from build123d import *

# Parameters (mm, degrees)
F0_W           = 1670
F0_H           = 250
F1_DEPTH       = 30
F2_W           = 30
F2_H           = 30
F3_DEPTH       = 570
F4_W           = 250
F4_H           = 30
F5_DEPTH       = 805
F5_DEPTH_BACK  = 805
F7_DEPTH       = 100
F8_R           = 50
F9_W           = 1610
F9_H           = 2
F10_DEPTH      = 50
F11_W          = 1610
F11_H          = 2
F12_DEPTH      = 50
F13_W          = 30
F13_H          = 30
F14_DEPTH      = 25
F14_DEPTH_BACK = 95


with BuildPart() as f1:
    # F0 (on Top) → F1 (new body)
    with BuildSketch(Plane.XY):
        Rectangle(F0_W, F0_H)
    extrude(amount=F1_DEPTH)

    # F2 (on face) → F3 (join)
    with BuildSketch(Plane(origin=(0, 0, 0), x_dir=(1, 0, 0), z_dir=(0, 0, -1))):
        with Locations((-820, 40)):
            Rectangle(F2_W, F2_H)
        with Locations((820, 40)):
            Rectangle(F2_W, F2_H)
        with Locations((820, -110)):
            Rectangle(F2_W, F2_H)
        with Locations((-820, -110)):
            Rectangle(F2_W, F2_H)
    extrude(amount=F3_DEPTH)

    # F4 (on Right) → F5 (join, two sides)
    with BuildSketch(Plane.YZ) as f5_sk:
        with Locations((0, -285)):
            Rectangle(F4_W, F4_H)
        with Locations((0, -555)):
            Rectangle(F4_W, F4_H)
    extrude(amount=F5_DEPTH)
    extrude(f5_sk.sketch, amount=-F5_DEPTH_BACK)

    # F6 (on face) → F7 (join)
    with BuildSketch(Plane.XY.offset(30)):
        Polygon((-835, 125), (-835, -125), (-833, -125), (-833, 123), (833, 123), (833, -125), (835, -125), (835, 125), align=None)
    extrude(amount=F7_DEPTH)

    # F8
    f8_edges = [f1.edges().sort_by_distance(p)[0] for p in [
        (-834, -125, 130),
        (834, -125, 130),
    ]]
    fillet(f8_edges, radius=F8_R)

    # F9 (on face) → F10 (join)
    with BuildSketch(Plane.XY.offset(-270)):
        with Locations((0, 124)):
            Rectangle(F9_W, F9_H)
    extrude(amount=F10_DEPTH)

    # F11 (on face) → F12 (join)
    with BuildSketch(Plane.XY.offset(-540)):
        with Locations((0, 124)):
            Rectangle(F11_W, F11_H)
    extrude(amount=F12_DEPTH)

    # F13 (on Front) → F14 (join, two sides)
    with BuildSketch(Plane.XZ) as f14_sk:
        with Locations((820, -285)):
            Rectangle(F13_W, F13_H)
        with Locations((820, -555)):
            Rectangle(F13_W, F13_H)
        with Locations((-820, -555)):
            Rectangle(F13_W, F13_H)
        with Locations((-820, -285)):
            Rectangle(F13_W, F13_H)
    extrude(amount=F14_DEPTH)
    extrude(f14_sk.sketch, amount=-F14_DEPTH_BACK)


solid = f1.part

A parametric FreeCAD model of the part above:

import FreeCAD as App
import Part
import Sketcher


def edges_at(feature, points):
    """Names of the edges that pass closest to the given points."""
    edges = feature.Shape.Edges
    near = lambda p: min(range(len(edges)), key=lambda i: edges[i].distToShape(Part.Vertex(*p))[0])
    return sorted({f"Edge{near(p) + 1}" for p in points})

doc = App.newDocument("Part")
body = doc.addObject("PartDesign::Body", "Body")

sketch1 = doc.addObject("Sketcher::SketchObject", "Sketch")
body.addObject(sketch1)
sketch1.AttachmentSupport = (doc.XY_Plane, [""])
sketch1.MapMode = "FlatFace"
sketch1.addGeometry(Part.LineSegment(App.Vector(-835, 125, 0), App.Vector(-835, -125, 0)), False)
sketch1.addGeometry(Part.LineSegment(App.Vector(-835, -125, 0), App.Vector(835, -125, 0)), False)
sketch1.addGeometry(Part.LineSegment(App.Vector(835, -125, 0), App.Vector(835, 125, 0)), False)
sketch1.addGeometry(Part.LineSegment(App.Vector(835, 125, 0), App.Vector(-835, 125, 0)), False)
sketch1.addConstraint(Sketcher.Constraint("Coincident", 0, 2, 1, 1))
sketch1.addConstraint(Sketcher.Constraint("Coincident", 1, 2, 2, 1))
sketch1.addConstraint(Sketcher.Constraint("Coincident", 2, 2, 3, 1))
sketch1.addConstraint(Sketcher.Constraint("Coincident", 3, 2, 0, 1))
sketch1.addConstraint(Sketcher.Constraint("Vertical", 0))
sketch1.addConstraint(Sketcher.Constraint("Horizontal", 1))
sketch1.addConstraint(Sketcher.Constraint("Vertical", 2))
sketch1.addConstraint(Sketcher.Constraint("Horizontal", 3))
sketch1.addConstraint(Sketcher.Constraint("Symmetric", 0, 2, 2, 2, -1, 1))
sketch1.addConstraint(Sketcher.Constraint("DistanceX", 1, 1, 1, 2, 1670.0))
sketch1.addConstraint(Sketcher.Constraint("DistanceY", 0, 2, 0, 1, 250.0))
pad1 = doc.addObject("PartDesign::Pad", "Pad")
body.addObject(pad1)
pad1.Profile = sketch1
pad1.Length = 30

sketch2 = doc.addObject("Sketcher::SketchObject", "Sketch001")
body.addObject(sketch2)
sketch2.AttachmentSupport = (doc.XY_Plane, [""])
sketch2.MapMode = "FlatFace"
sketch2.addGeometry(Part.LineSegment(App.Vector(-835, -55, 0), App.Vector(-835, -25, 0)), False)
sketch2.addGeometry(Part.LineSegment(App.Vector(-835, -25, 0), App.Vector(-805, -25, 0)), False)
sketch2.addGeometry(Part.LineSegment(App.Vector(-805, -25, 0), App.Vector(-805, -55, 0)), False)
sketch2.addGeometry(Part.LineSegment(App.Vector(-805, -55, 0), App.Vector(-835, -55, 0)), False)
sketch2.addGeometry(Part.LineSegment(App.Vector(805, -55, 0), App.Vector(805, -25, 0)), False)
sketch2.addGeometry(Part.LineSegment(App.Vector(805, -25, 0), App.Vector(835, -25, 0)), False)
sketch2.addGeometry(Part.LineSegment(App.Vector(835, -25, 0), App.Vector(835, -55, 0)), False)
sketch2.addGeometry(Part.LineSegment(App.Vector(835, -55, 0), App.Vector(805, -55, 0)), False)
sketch2.addGeometry(Part.LineSegment(App.Vector(805, 95, 0), App.Vector(805, 125, 0)), False)
sketch2.addGeometry(Part.LineSegment(App.Vector(805, 125, 0), App.Vector(835, 125, 0)), False)
sketch2.addGeometry(Part.LineSegment(App.Vector(835, 125, 0), App.Vector(835, 95, 0)), False)
sketch2.addGeometry(Part.LineSegment(App.Vector(835, 95, 0), App.Vector(805, 95, 0)), False)
sketch2.addGeometry(Part.LineSegment(App.Vector(-835, 95, 0), App.Vector(-835, 125, 0)), False)
sketch2.addGeometry(Part.LineSegment(App.Vector(-835, 125, 0), App.Vector(-805, 125, 0)), False)
sketch2.addGeometry(Part.LineSegment(App.Vector(-805, 125, 0), App.Vector(-805, 95, 0)), False)
sketch2.addGeometry(Part.LineSegment(App.Vector(-805, 95, 0), App.Vector(-835, 95, 0)), False)
sketch2.addConstraint(Sketcher.Constraint("Coincident", 0, 2, 1, 1))
sketch2.addConstraint(Sketcher.Constraint("Coincident", 1, 2, 2, 1))
sketch2.addConstraint(Sketcher.Constraint("Coincident", 2, 2, 3, 1))
sketch2.addConstraint(Sketcher.Constraint("Coincident", 3, 2, 0, 1))
sketch2.addConstraint(Sketcher.Constraint("Coincident", 4, 2, 5, 1))
sketch2.addConstraint(Sketcher.Constraint("Coincident", 5, 2, 6, 1))
sketch2.addConstraint(Sketcher.Constraint("Coincident", 6, 2, 7, 1))
sketch2.addConstraint(Sketcher.Constraint("Coincident", 7, 2, 4, 1))
sketch2.addConstraint(Sketcher.Constraint("Coincident", 8, 2, 9, 1))
sketch2.addConstraint(Sketcher.Constraint("Coincident", 9, 2, 10, 1))
sketch2.addConstraint(Sketcher.Constraint("Coincident", 10, 2, 11, 1))
sketch2.addConstraint(Sketcher.Constraint("Coincident", 11, 2, 8, 1))
sketch2.addConstraint(Sketcher.Constraint("Coincident", 12, 2, 13, 1))
sketch2.addConstraint(Sketcher.Constraint("Coincident", 13, 2, 14, 1))
sketch2.addConstraint(Sketcher.Constraint("Coincident", 14, 2, 15, 1))
sketch2.addConstraint(Sketcher.Constraint("Coincident", 15, 2, 12, 1))
sketch2.addConstraint(Sketcher.Constraint("Vertical", 0))
sketch2.addConstraint(Sketcher.Constraint("Horizontal", 1))
sketch2.addConstraint(Sketcher.Constraint("Vertical", 2))
sketch2.addConstraint(Sketcher.Constraint("Horizontal", 3))
sketch2.addConstraint(Sketcher.Constraint("Vertical", 4))
sketch2.addConstraint(Sketcher.Constraint("Horizontal", 5))
sketch2.addConstraint(Sketcher.Constraint("Vertical", 6))
sketch2.addConstraint(Sketcher.Constraint("Horizontal", 7))
sketch2.addConstraint(Sketcher.Constraint("Vertical", 8))
sketch2.addConstraint(Sketcher.Constraint("Horizontal", 9))
sketch2.addConstraint(Sketcher.Constraint("Vertical", 10))
sketch2.addConstraint(Sketcher.Constraint("Horizontal", 11))
sketch2.addConstraint(Sketcher.Constraint("Vertical", 12))
sketch2.addConstraint(Sketcher.Constraint("Horizontal", 13))
sketch2.addConstraint(Sketcher.Constraint("Vertical", 14))
sketch2.addConstraint(Sketcher.Constraint("Horizontal", 15))
sketch2.addConstraint(Sketcher.Constraint("Symmetric", 1, 2, 4, 2, -2))
sketch2.addConstraint(Sketcher.Constraint("Symmetric", 3, 2, 6, 2, -2))
sketch2.addConstraint(Sketcher.Constraint("Symmetric", 9, 2, 12, 2, -2))
sketch2.addConstraint(Sketcher.Constraint("Symmetric", 11, 2, 14, 2, -2))
sketch2.addConstraint(Sketcher.Constraint("Vertical", 7, 2, 8, 2))
sketch2.addConstraint(Sketcher.Constraint("Vertical", 6, 2, 9, 2))
sketch2.addConstraint(Sketcher.Constraint("Equal", 15, 0))
sketch2.addConstraint(Sketcher.Constraint("Equal", 6, 8))
sketch2.addConstraint(Sketcher.Constraint("DistanceX", 1, 1, 1, 2, 30.0))
sketch2.addConstraint(Sketcher.Constraint("DistanceX", 0, 2, -1, 1, 835.0))
sketch2.addConstraint(Sketcher.Constraint("DistanceY", 0, 2, -1, 1, 25.0))
sketch2.addConstraint(Sketcher.Constraint("DistanceY", -1, 1, 8, 2, 125.0))
pad2 = doc.addObject("PartDesign::Pad", "Pad001")
body.addObject(pad2)
pad2.Profile = sketch2
pad2.Length = 570
pad2.Reversed = True

sketch3 = doc.addObject("Sketcher::SketchObject", "Sketch002")
body.addObject(sketch3)
sketch3.AttachmentSupport = (doc.YZ_Plane, [""])
sketch3.MapMode = "FlatFace"
sketch3.addGeometry(Part.LineSegment(App.Vector(-125, -270, 0), App.Vector(-125, -300, 0)), False)
sketch3.addGeometry(Part.LineSegment(App.Vector(-125, -300, 0), App.Vector(125, -300, 0)), False)
sketch3.addGeometry(Part.LineSegment(App.Vector(125, -300, 0), App.Vector(125, -270, 0)), False)
sketch3.addGeometry(Part.LineSegment(App.Vector(125, -270, 0), App.Vector(-125, -270, 0)), False)
sketch3.addGeometry(Part.LineSegment(App.Vector(-125, -540, 0), App.Vector(-125, -570, 0)), False)
sketch3.addGeometry(Part.LineSegment(App.Vector(-125, -570, 0), App.Vector(125, -570, 0)), False)
sketch3.addGeometry(Part.LineSegment(App.Vector(125, -570, 0), App.Vector(125, -540, 0)), False)
sketch3.addGeometry(Part.LineSegment(App.Vector(125, -540, 0), App.Vector(-125, -540, 0)), False)
sketch3.addConstraint(Sketcher.Constraint("Coincident", 0, 2, 1, 1))
sketch3.addConstraint(Sketcher.Constraint("Coincident", 1, 2, 2, 1))
sketch3.addConstraint(Sketcher.Constraint("Coincident", 2, 2, 3, 1))
sketch3.addConstraint(Sketcher.Constraint("Coincident", 3, 2, 0, 1))
sketch3.addConstraint(Sketcher.Constraint("Coincident", 4, 2, 5, 1))
sketch3.addConstraint(Sketcher.Constraint("Coincident", 5, 2, 6, 1))
sketch3.addConstraint(Sketcher.Constraint("Coincident", 6, 2, 7, 1))
sketch3.addConstraint(Sketcher.Constraint("Coincident", 7, 2, 4, 1))
sketch3.addConstraint(Sketcher.Constraint("Vertical", 0))
sketch3.addConstraint(Sketcher.Constraint("Horizontal", 1))
sketch3.addConstraint(Sketcher.Constraint("Vertical", 2))
sketch3.addConstraint(Sketcher.Constraint("Horizontal", 3))
sketch3.addConstraint(Sketcher.Constraint("Vertical", 4))
sketch3.addConstraint(Sketcher.Constraint("Horizontal", 5))
sketch3.addConstraint(Sketcher.Constraint("Vertical", 6))
sketch3.addConstraint(Sketcher.Constraint("Horizontal", 7))
sketch3.addConstraint(Sketcher.Constraint("Vertical", 3, 2, 4, 2))
sketch3.addConstraint(Sketcher.Constraint("Vertical", 2, 2, 5, 2))
sketch3.addConstraint(Sketcher.Constraint("Equal", 2, 4))
sketch3.addConstraint(Sketcher.Constraint("DistanceX", 1, 1, 1, 2, 250.0))
sketch3.addConstraint(Sketcher.Constraint("DistanceY", 0, 2, 0, 1, 30.0))
sketch3.addConstraint(Sketcher.Constraint("DistanceX", 0, 2, -1, 1, 125.0))
sketch3.addConstraint(Sketcher.Constraint("DistanceY", 0, 2, -1, 1, 300.0))
sketch3.addConstraint(Sketcher.Constraint("DistanceY", 4, 2, -1, 1, 570.0))
pad3 = doc.addObject("PartDesign::Pad", "Pad002")
body.addObject(pad3)
pad3.Profile = sketch3
pad3.Type = "TwoLengths"
pad3.Length = 805
pad3.Length2 = 805

sketch4 = doc.addObject("Sketcher::SketchObject", "Sketch003")
body.addObject(sketch4)
sketch4.AttachmentSupport = (doc.XY_Plane, [""])
sketch4.MapMode = "FlatFace"
sketch4.AttachmentOffset = App.Placement(App.Vector(0, 0, 30), App.Rotation())
sketch4.addGeometry(Part.LineSegment(App.Vector(-835, 125, 0), App.Vector(-835, -125, 0)), False)
sketch4.addGeometry(Part.LineSegment(App.Vector(-835, -125, 0), App.Vector(-833, -125, 0)), False)
sketch4.addGeometry(Part.LineSegment(App.Vector(-833, -125, 0), App.Vector(-833, 123, 0)), False)
sketch4.addGeometry(Part.LineSegment(App.Vector(-833, 123, 0), App.Vector(833, 123, 0)), False)
sketch4.addGeometry(Part.LineSegment(App.Vector(833, 123, 0), App.Vector(833, -125, 0)), False)
sketch4.addGeometry(Part.LineSegment(App.Vector(833, -125, 0), App.Vector(835, -125, 0)), False)
sketch4.addGeometry(Part.LineSegment(App.Vector(835, -125, 0), App.Vector(835, 125, 0)), False)
sketch4.addGeometry(Part.LineSegment(App.Vector(835, 125, 0), App.Vector(-835, 125, 0)), False)
sketch4.addConstraint(Sketcher.Constraint("Coincident", 0, 2, 1, 1))
sketch4.addConstraint(Sketcher.Constraint("Coincident", 1, 2, 2, 1))
sketch4.addConstraint(Sketcher.Constraint("Coincident", 2, 2, 3, 1))
sketch4.addConstraint(Sketcher.Constraint("Coincident", 3, 2, 4, 1))
sketch4.addConstraint(Sketcher.Constraint("Coincident", 4, 2, 5, 1))
sketch4.addConstraint(Sketcher.Constraint("Coincident", 5, 2, 6, 1))
sketch4.addConstraint(Sketcher.Constraint("Coincident", 6, 2, 7, 1))
sketch4.addConstraint(Sketcher.Constraint("Coincident", 7, 2, 0, 1))
sketch4.addConstraint(Sketcher.Constraint("Vertical", 0))
sketch4.addConstraint(Sketcher.Constraint("Horizontal", 1))
sketch4.addConstraint(Sketcher.Constraint("Vertical", 2))
sketch4.addConstraint(Sketcher.Constraint("Horizontal", 3))
sketch4.addConstraint(Sketcher.Constraint("Vertical", 4))
sketch4.addConstraint(Sketcher.Constraint("Horizontal", 5))
sketch4.addConstraint(Sketcher.Constraint("Vertical", 6))
sketch4.addConstraint(Sketcher.Constraint("Horizontal", 7))
sketch4.addConstraint(Sketcher.Constraint("Symmetric", 0, 2, 6, 2, -1, 1))
sketch4.addConstraint(Sketcher.Constraint("Symmetric", 1, 2, 4, 2, -2))
sketch4.addConstraint(Sketcher.Constraint("DistanceX", 1, 1, 1, 2, 2.0))
sketch4.addConstraint(Sketcher.Constraint("DistanceX", 3, 1, 3, 2, 1666.0))
sketch4.addConstraint(Sketcher.Constraint("DistanceY", 0, 2, 0, 1, 250.0))
sketch4.addConstraint(Sketcher.Constraint("DistanceY", 2, 1, 2, 2, 248.0))
pad4 = doc.addObject("PartDesign::Pad", "Pad003")
body.addObject(pad4)
pad4.Profile = sketch4
pad4.Length = 100
doc.recompute()

fillet = doc.addObject("PartDesign::Fillet", "Fillet")
body.addObject(fillet)
fillet.Base = (pad4, edges_at(pad4, [(-834, -125, 130), (834, -125, 130)]))
fillet.Radius = 50

sketch5 = doc.addObject("Sketcher::SketchObject", "Sketch004")
body.addObject(sketch5)
sketch5.AttachmentSupport = (doc.XY_Plane, [""])
sketch5.MapMode = "FlatFace"
sketch5.AttachmentOffset = App.Placement(App.Vector(0, 0, -270), App.Rotation())
sketch5.addGeometry(Part.LineSegment(App.Vector(-805, 125, 0), App.Vector(-805, 123, 0)), False)
sketch5.addGeometry(Part.LineSegment(App.Vector(-805, 123, 0), App.Vector(805, 123, 0)), False)
sketch5.addGeometry(Part.LineSegment(App.Vector(805, 123, 0), App.Vector(805, 125, 0)), False)
sketch5.addGeometry(Part.LineSegment(App.Vector(805, 125, 0), App.Vector(-805, 125, 0)), False)
sketch5.addConstraint(Sketcher.Constraint("Coincident", 0, 2, 1, 1))
sketch5.addConstraint(Sketcher.Constraint("Coincident", 1, 2, 2, 1))
sketch5.addConstraint(Sketcher.Constraint("Coincident", 2, 2, 3, 1))
sketch5.addConstraint(Sketcher.Constraint("Coincident", 3, 2, 0, 1))
sketch5.addConstraint(Sketcher.Constraint("Vertical", 0))
sketch5.addConstraint(Sketcher.Constraint("Horizontal", 1))
sketch5.addConstraint(Sketcher.Constraint("Vertical", 2))
sketch5.addConstraint(Sketcher.Constraint("Horizontal", 3))
sketch5.addConstraint(Sketcher.Constraint("DistanceX", 1, 1, 1, 2, 1610.0))
sketch5.addConstraint(Sketcher.Constraint("DistanceY", 0, 2, 0, 1, 2.0))
sketch5.addConstraint(Sketcher.Constraint("DistanceX", 0, 2, -1, 1, 805.0))
sketch5.addConstraint(Sketcher.Constraint("DistanceY", -1, 1, 0, 2, 123.0))
pad5 = doc.addObject("PartDesign::Pad", "Pad004")
body.addObject(pad5)
pad5.Profile = sketch5
pad5.Length = 50

sketch6 = doc.addObject("Sketcher::SketchObject", "Sketch005")
body.addObject(sketch6)
sketch6.AttachmentSupport = (doc.XY_Plane, [""])
sketch6.MapMode = "FlatFace"
sketch6.AttachmentOffset = App.Placement(App.Vector(0, 0, -540), App.Rotation())
sketch6.addGeometry(Part.LineSegment(App.Vector(-805, 125, 0), App.Vector(-805, 123, 0)), False)
sketch6.addGeometry(Part.LineSegment(App.Vector(-805, 123, 0), App.Vector(805, 123, 0)), False)
sketch6.addGeometry(Part.LineSegment(App.Vector(805, 123, 0), App.Vector(805, 125, 0)), False)
sketch6.addGeometry(Part.LineSegment(App.Vector(805, 125, 0), App.Vector(-805, 125, 0)), False)
sketch6.addConstraint(Sketcher.Constraint("Coincident", 0, 2, 1, 1))
sketch6.addConstraint(Sketcher.Constraint("Coincident", 1, 2, 2, 1))
sketch6.addConstraint(Sketcher.Constraint("Coincident", 2, 2, 3, 1))
sketch6.addConstraint(Sketcher.Constraint("Coincident", 3, 2, 0, 1))
sketch6.addConstraint(Sketcher.Constraint("Vertical", 0))
sketch6.addConstraint(Sketcher.Constraint("Horizontal", 1))
sketch6.addConstraint(Sketcher.Constraint("Vertical", 2))
sketch6.addConstraint(Sketcher.Constraint("Horizontal", 3))
sketch6.addConstraint(Sketcher.Constraint("DistanceX", 1, 1, 1, 2, 1610.0))
sketch6.addConstraint(Sketcher.Constraint("DistanceY", 0, 2, 0, 1, 2.0))
sketch6.addConstraint(Sketcher.Constraint("DistanceX", 0, 2, -1, 1, 805.0))
sketch6.addConstraint(Sketcher.Constraint("DistanceY", -1, 1, 0, 2, 123.0))
pad6 = doc.addObject("PartDesign::Pad", "Pad005")
body.addObject(pad6)
pad6.Profile = sketch6
pad6.Length = 50

sketch7 = doc.addObject("Sketcher::SketchObject", "Sketch006")
body.addObject(sketch7)
sketch7.AttachmentSupport = (doc.XZ_Plane, [""])
sketch7.MapMode = "FlatFace"
sketch7.addGeometry(Part.LineSegment(App.Vector(805, -270, 0), App.Vector(805, -300, 0)), False)
sketch7.addGeometry(Part.LineSegment(App.Vector(805, -300, 0), App.Vector(835, -300, 0)), False)
sketch7.addGeometry(Part.LineSegment(App.Vector(835, -300, 0), App.Vector(835, -270, 0)), False)
sketch7.addGeometry(Part.LineSegment(App.Vector(835, -270, 0), App.Vector(805, -270, 0)), False)
sketch7.addGeometry(Part.LineSegment(App.Vector(805, -540, 0), App.Vector(805, -570, 0)), False)
sketch7.addGeometry(Part.LineSegment(App.Vector(805, -570, 0), App.Vector(835, -570, 0)), False)
sketch7.addGeometry(Part.LineSegment(App.Vector(835, -570, 0), App.Vector(835, -540, 0)), False)
sketch7.addGeometry(Part.LineSegment(App.Vector(835, -540, 0), App.Vector(805, -540, 0)), False)
sketch7.addGeometry(Part.LineSegment(App.Vector(-835, -540, 0), App.Vector(-835, -570, 0)), False)
sketch7.addGeometry(Part.LineSegment(App.Vector(-835, -570, 0), App.Vector(-805, -570, 0)), False)
sketch7.addGeometry(Part.LineSegment(App.Vector(-805, -570, 0), App.Vector(-805, -540, 0)), False)
sketch7.addGeometry(Part.LineSegment(App.Vector(-805, -540, 0), App.Vector(-835, -540, 0)), False)
sketch7.addGeometry(Part.LineSegment(App.Vector(-835, -270, 0), App.Vector(-835, -300, 0)), False)
sketch7.addGeometry(Part.LineSegment(App.Vector(-835, -300, 0), App.Vector(-805, -300, 0)), False)
sketch7.addGeometry(Part.LineSegment(App.Vector(-805, -300, 0), App.Vector(-805, -270, 0)), False)
sketch7.addGeometry(Part.LineSegment(App.Vector(-805, -270, 0), App.Vector(-835, -270, 0)), False)
sketch7.addConstraint(Sketcher.Constraint("Coincident", 0, 2, 1, 1))
sketch7.addConstraint(Sketcher.Constraint("Coincident", 1, 2, 2, 1))
sketch7.addConstraint(Sketcher.Constraint("Coincident", 2, 2, 3, 1))
sketch7.addConstraint(Sketcher.Constraint("Coincident", 3, 2, 0, 1))
sketch7.addConstraint(Sketcher.Constraint("Coincident", 4, 2, 5, 1))
sketch7.addConstraint(Sketcher.Constraint("Coincident", 5, 2, 6, 1))
sketch7.addConstraint(Sketcher.Constraint("Coincident", 6, 2, 7, 1))
sketch7.addConstraint(Sketcher.Constraint("Coincident", 7, 2, 4, 1))
sketch7.addConstraint(Sketcher.Constraint("Coincident", 8, 2, 9, 1))
sketch7.addConstraint(Sketcher.Constraint("Coincident", 9, 2, 10, 1))
sketch7.addConstraint(Sketcher.Constraint("Coincident", 10, 2, 11, 1))
sketch7.addConstraint(Sketcher.Constraint("Coincident", 11, 2, 8, 1))
sketch7.addConstraint(Sketcher.Constraint("Coincident", 12, 2, 13, 1))
sketch7.addConstraint(Sketcher.Constraint("Coincident", 13, 2, 14, 1))
sketch7.addConstraint(Sketcher.Constraint("Coincident", 14, 2, 15, 1))
sketch7.addConstraint(Sketcher.Constraint("Coincident", 15, 2, 12, 1))
sketch7.addConstraint(Sketcher.Constraint("Vertical", 0))
sketch7.addConstraint(Sketcher.Constraint("Horizontal", 1))
sketch7.addConstraint(Sketcher.Constraint("Vertical", 2))
sketch7.addConstraint(Sketcher.Constraint("Horizontal", 3))
sketch7.addConstraint(Sketcher.Constraint("Vertical", 4))
sketch7.addConstraint(Sketcher.Constraint("Horizontal", 5))
sketch7.addConstraint(Sketcher.Constraint("Vertical", 6))
sketch7.addConstraint(Sketcher.Constraint("Horizontal", 7))
sketch7.addConstraint(Sketcher.Constraint("Vertical", 8))
sketch7.addConstraint(Sketcher.Constraint("Horizontal", 9))
sketch7.addConstraint(Sketcher.Constraint("Vertical", 10))
sketch7.addConstraint(Sketcher.Constraint("Horizontal", 11))
sketch7.addConstraint(Sketcher.Constraint("Vertical", 12))
sketch7.addConstraint(Sketcher.Constraint("Horizontal", 13))
sketch7.addConstraint(Sketcher.Constraint("Vertical", 14))
sketch7.addConstraint(Sketcher.Constraint("Horizontal", 15))
sketch7.addConstraint(Sketcher.Constraint("Symmetric", 5, 2, 8, 2, -2))
sketch7.addConstraint(Sketcher.Constraint("Symmetric", 7, 2, 10, 2, -2))
sketch7.addConstraint(Sketcher.Constraint("Symmetric", 1, 2, 12, 2, -2))
sketch7.addConstraint(Sketcher.Constraint("Symmetric", 3, 2, 14, 2, -2))
sketch7.addConstraint(Sketcher.Constraint("Vertical", 3, 2, 4, 2))
sketch7.addConstraint(Sketcher.Constraint("Vertical", 2, 2, 5, 2))
sketch7.addConstraint(Sketcher.Constraint("Equal", 15, 0))
sketch7.addConstraint(Sketcher.Constraint("Equal", 2, 4))
sketch7.addConstraint(Sketcher.Constraint("DistanceX", 1, 1, 1, 2, 30.0))
sketch7.addConstraint(Sketcher.Constraint("DistanceX", -1, 1, 0, 2, 805.0))
sketch7.addConstraint(Sketcher.Constraint("DistanceY", 0, 2, -1, 1, 300.0))
sketch7.addConstraint(Sketcher.Constraint("DistanceY", 4, 2, -1, 1, 570.0))
pad7 = doc.addObject("PartDesign::Pad", "Pad006")
body.addObject(pad7)
pad7.Profile = sketch7
pad7.Type = "TwoLengths"
pad7.Length = 25
pad7.Length2 = 95

doc.recompute()
